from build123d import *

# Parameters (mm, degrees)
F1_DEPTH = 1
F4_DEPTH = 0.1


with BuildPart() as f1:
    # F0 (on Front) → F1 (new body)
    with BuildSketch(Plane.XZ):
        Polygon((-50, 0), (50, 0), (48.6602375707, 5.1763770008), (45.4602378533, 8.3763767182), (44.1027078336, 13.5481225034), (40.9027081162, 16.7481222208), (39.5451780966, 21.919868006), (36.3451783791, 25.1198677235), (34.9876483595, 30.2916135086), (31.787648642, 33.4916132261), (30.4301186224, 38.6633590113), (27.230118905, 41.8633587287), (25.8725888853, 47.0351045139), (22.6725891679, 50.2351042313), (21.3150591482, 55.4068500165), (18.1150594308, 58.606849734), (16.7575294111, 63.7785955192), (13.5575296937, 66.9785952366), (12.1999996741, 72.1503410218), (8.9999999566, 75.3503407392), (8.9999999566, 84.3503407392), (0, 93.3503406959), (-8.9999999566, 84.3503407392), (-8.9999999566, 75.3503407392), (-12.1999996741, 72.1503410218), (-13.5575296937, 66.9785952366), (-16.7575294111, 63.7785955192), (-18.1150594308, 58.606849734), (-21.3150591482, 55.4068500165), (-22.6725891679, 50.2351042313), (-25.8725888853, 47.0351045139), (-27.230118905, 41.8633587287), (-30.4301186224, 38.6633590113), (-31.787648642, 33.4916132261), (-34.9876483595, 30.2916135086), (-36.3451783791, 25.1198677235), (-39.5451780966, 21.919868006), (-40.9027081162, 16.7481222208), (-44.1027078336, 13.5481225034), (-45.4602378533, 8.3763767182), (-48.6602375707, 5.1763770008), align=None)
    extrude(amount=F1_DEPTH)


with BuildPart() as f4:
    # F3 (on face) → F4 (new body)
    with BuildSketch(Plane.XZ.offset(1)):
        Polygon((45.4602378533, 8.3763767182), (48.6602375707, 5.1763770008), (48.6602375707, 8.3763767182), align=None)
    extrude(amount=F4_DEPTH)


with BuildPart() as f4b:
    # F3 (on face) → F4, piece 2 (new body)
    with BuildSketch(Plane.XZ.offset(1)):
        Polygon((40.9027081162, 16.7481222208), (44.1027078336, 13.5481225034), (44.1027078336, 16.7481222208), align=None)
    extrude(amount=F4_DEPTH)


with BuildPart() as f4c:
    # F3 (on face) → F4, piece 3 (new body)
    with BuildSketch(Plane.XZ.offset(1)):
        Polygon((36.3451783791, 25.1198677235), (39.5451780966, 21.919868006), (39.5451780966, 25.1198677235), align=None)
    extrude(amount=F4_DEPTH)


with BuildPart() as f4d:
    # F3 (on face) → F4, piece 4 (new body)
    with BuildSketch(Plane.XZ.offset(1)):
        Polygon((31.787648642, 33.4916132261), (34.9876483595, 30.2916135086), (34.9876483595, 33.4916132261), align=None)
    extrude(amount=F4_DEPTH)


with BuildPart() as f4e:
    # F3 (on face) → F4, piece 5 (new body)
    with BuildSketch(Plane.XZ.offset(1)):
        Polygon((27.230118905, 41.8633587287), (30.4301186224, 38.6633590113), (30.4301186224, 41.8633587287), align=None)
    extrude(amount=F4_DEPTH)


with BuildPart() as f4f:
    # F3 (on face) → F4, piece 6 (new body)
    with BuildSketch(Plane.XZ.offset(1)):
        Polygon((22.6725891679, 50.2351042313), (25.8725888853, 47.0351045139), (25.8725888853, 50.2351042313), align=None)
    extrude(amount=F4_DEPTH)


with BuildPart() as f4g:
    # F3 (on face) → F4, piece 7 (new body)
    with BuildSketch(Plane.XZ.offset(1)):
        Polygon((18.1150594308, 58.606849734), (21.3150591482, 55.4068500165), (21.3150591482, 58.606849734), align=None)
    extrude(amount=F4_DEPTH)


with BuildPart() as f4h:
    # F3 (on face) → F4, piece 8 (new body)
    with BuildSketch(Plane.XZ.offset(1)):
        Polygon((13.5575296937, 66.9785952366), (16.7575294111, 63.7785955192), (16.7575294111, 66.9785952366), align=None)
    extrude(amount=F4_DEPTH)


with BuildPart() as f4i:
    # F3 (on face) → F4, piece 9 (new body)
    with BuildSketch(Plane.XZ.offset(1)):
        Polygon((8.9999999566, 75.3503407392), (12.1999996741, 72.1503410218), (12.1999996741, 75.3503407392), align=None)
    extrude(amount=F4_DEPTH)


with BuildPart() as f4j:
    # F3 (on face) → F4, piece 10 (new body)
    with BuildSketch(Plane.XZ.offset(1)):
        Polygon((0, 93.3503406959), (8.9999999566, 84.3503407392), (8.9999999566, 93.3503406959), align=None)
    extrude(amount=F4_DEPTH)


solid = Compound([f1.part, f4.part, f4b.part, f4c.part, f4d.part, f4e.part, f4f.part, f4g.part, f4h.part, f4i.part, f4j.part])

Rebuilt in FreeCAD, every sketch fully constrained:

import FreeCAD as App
import Part
import Sketcher
Q = App.Units.Quantity


def add_polygon(sketch, points):
    """Adds a closed chain of lines whose ends are joined by coincident constraints."""
    first, n = sketch.GeometryCount, len(points)
    for a, b in zip(points, points[1:] + points[:1]):
        sketch.addGeometry(Part.LineSegment(App.Vector(*a, 0), App.Vector(*b, 0)), False)
    for i in range(n):
        sketch.addConstraint(Sketcher.Constraint("Coincident", first + i, 2, first + (i + 1) % n, 1))

doc = App.newDocument("Part")
params = doc.addObject("Spreadsheet::Sheet", "Params")
for row, (alias, value) in enumerate([
    ("sketch1_width", "100 mm"),
    ("sketch1_height", "9 mm"),
    ("pad1_length", "1 mm"),
    ("sketch2_width", "3.2 mm"),
    ("pad2_length", "0.1 mm"),
    ("sketch3_width", "3.2 mm"),
    ("pad3_length", "0.1 mm"),
    ("sketch4_width", "3.2 mm"),
    ("pad4_length", "0.1 mm"),
    ("sketch5_width", "3.2 mm"),
    ("pad5_length", "0.1 mm"),
    ("sketch6_width", "3.2 mm"),
    ("pad6_length", "0.1 mm"),
    ("sketch7_width", "3.2 mm"),
    ("pad7_length", "0.1 mm"),
    ("sketch8_width", "3.2 mm"),
    ("pad8_length", "0.1 mm"),
    ("sketch9_width", "3.2 mm"),
    ("pad9_length", "0.1 mm"),
    ("sketch10_width", "3.2 mm"),
    ("pad10_length", "0.1 mm"),
    ("sketch11_width", "9 mm"),
    ("pad11_length", "0.1 mm"),
], start=1):
    params.set(f"A{row}", alias)
    params.set(f"B{row}", "=" + value)
    params.setAlias(f"B{row}", alias)

body = doc.addObject("PartDesign::Body", "Body")

sketch1 = body.newObject("Sketcher::SketchObject", "Sketch")
sketch1.AttachmentSupport = (doc.getObject("XZ_Plane"), [""])
sketch1.MapMode = "FlatFace"
add_polygon(sketch1, [(-50, 0), (50, 0), (48.660238, 5.176377), (45.460238, 8.376377), (44.102708, 13.548123), (40.902708, 16.748122), (39.545178, 21.919868), (36.345178, 25.119868), (34.987648, 30.291614), (31.787649, 33.491613), (30.430119, 38.663359), (27.230119, 41.863359), (25.872589, 47.035105), (22.672589, 50.235104), (21.315059, 55.40685), (18.115059, 58.60685), (16.757529, 63.778596), (13.55753, 66.978595), (12.2, 72.150341), (9, 75.350341), (9, 84.350341), (0, 93.350341), (-9, 84.350341), (-9, 75.350341), (-12.2, 72.150341), (-13.55753, 66.978595), (-16.757529, 63.778596), (-18.115059, 58.60685), (-21.315059, 55.40685), (-22.672589, 50.235104), (-25.872589, 47.035105), (-27.230119, 41.863359), (-30.430119, 38.663359), (-31.787649, 33.491613), (-34.987648, 30.291614), (-36.345178, 25.119868), (-39.545178, 21.919868), (-40.902708, 16.748122), (-44.102708, 13.548123), (-45.460238, 8.376377), (-48.660238, 5.176377)])
sketch1.addConstraint([
    Sketcher.Constraint("Horizontal", 0),
    Sketcher.Constraint("Vertical", 19),
    Sketcher.Constraint("Vertical", 22),
    Sketcher.Constraint("Symmetric", 0, 2, 40, 2, -1, 1),
    Sketcher.Constraint("Symmetric", 19, 2, 21, 2, -2),
    Sketcher.Constraint("Symmetric", 17, 2, 23, 2, -2),
    Sketcher.Constraint("Symmetric", 16, 2, 24, 2, -2),
    Sketcher.Constraint("Symmetric", 15, 2, 25, 2, -2),
    Sketcher.Constraint("Symmetric", 14, 2, 26, 2, -2),
    Sketcher.Constraint("Symmetric", 13, 2, 27, 2, -2),
    Sketcher.Constraint("Symmetric", 12, 2, 28, 2, -2),
    Sketcher.Constraint("Symmetric", 11, 2, 29, 2, -2),
    Sketcher.Constraint("Symmetric", 10, 2, 30, 2, -2),
    Sketcher.Constraint("Symmetric", 9, 2, 31, 2, -2),
    Sketcher.Constraint("Symmetric", 8, 2, 32, 2, -2),
    Sketcher.Constraint("Symmetric", 7, 2, 33, 2, -2),
    Sketcher.Constraint("Symmetric", 6, 2, 34, 2, -2),
    Sketcher.Constraint("Symmetric", 5, 2, 35, 2, -2),
    Sketcher.Constraint("Symmetric", 4, 2, 36, 2, -2),
    Sketcher.Constraint("Symmetric", 3, 2, 37, 2, -2),
    Sketcher.Constraint("Symmetric", 2, 2, 38, 2, -2),
    Sketcher.Constraint("Symmetric", 1, 2, 39, 2, -2),
    Sketcher.Constraint("PointOnObject", 20, 2, -2),
    Sketcher.Constraint("Parallel", 2, 4),
    Sketcher.Constraint("Parallel", 3, 5),
    Sketcher.Constraint("Parallel", 4, 6),
    Sketcher.Constraint("Parallel", 5, 7),
    Sketcher.Constraint("Parallel", 6, 8),
    Sketcher.Constraint("Parallel", 7, 9),
    Sketcher.Constraint("Parallel", 8, 10),
    Sketcher.Constraint("Parallel", 9, 11),
    Sketcher.Constraint("Parallel", 10, 12),
    Sketcher.Constraint("Parallel", 11, 13),
    Sketcher.Constraint("Parallel", 12, 14),
    Sketcher.Constraint("Parallel", 13, 15),
    Sketcher.Constraint("Parallel", 14, 16),
    Sketcher.Constraint("Parallel", 15, 17),
    Sketcher.Constraint("Parallel", 16, 18),
    Sketcher.Constraint("Parallel", 18, 20),
    Sketcher.Constraint("Perpendicular", 20, 21),
    Sketcher.Constraint("Parallel", 21, 23),
    Sketcher.Constraint("Equal", 1, 3),
    Sketcher.Constraint("Equal", 2, 4),
    Sketcher.Constraint("Equal", 3, 5),
    Sketcher.Constraint("Equal", 4, 6),
    Sketcher.Constraint("Equal", 5, 7),
    Sketcher.Constraint("Equal", 6, 8),
    Sketcher.Constraint("Equal", 7, 9),
    Sketcher.Constraint("Equal", 8, 10),
    Sketcher.Constraint("Equal", 9, 11),
    Sketcher.Constraint("Equal", 10, 12),
    Sketcher.Constraint("Equal", 11, 13),
    Sketcher.Constraint("Equal", 12, 14),
    Sketcher.Constraint("Equal", 13, 15),
    Sketcher.Constraint("Equal", 14, 16),
    Sketcher.Constraint("Equal", 15, 17),
    Sketcher.Constraint("Equal", 16, 18),
    Sketcher.Constraint("DistanceX", 0, 1, 0, 2, Q("100 mm")),
    Sketcher.Constraint("DistanceY", 19, 1, 19, 2, Q("9 mm")),
    Sketcher.Constraint("DistanceX", -1, 1, 18, 2, Q("9 mm")),
    Sketcher.Constraint("DistanceX", -1, 1, 17, 2, Q("12.2 mm")),
    Sketcher.Constraint("DistanceX", -1, 1, 4, 2, Q("40.902708 mm")),
    Sketcher.Constraint("DistanceY", -1, 1, 5, 2, Q("21.919868 mm")),
])
sketch1.setExpression("Constraints[98]", "Params.sketch1_width")
sketch1.setExpression("Constraints[99]", "Params.sketch1_height")
pad1 = body.newObject("PartDesign::Pad", "Pad")
pad1.Profile = sketch1
pad1.setExpression("Length", "Params.pad1_length")
body2 = doc.addObject("PartDesign::Body", "Body001")

sketch2 = body2.newObject("Sketcher::SketchObject", "Sketch001")
sketch2.AttachmentSupport = (doc.getObject("XZ_Plane001"), [""])
sketch2.MapMode = "FlatFace"
sketch2.AttachmentOffset = App.Placement(App.Vector(0, 0, 1), App.Rotation())
add_polygon(sketch2, [(45.460238, 8.376377), (48.660238, 5.176377), (48.660238, 8.376377)])
sketch2.addConstraint([
    Sketcher.Constraint("Vertical", 1),
    Sketcher.Constraint("Horizontal", 2),
    Sketcher.Constraint("Equal", 2, 1),
    Sketcher.Constraint("DistanceX", 2, 2, 2, 1, Q("3.2 mm")),
    Sketcher.Constraint("DistanceX", -1, 1, 0, 2, Q("48.660238 mm")),
    Sketcher.Constraint("DistanceY", -1, 1, 0, 2, Q("5.176377 mm")),
])
sketch2.setExpression("Constraints[6]", "Params.sketch2_width")
pad2 = body2.newObject("PartDesign::Pad", "Pad001")
pad2.Profile = sketch2
pad2.setExpression("Length", "Params.pad2_length")
body3 = doc.addObject("PartDesign::Body", "Body002")

sketch3 = body3.newObject("Sketcher::SketchObject", "Sketch002")
sketch3.AttachmentSupport = (doc.getObject("XZ_Plane002"), [""])
sketch3.MapMode = "FlatFace"
sketch3.AttachmentOffset = App.Placement(App.Vector(0, 0, 1), App.Rotation())
add_polygon(sketch3, [(40.902708, 16.748122), (44.102708, 13.548123), (44.102708, 16.748122)])
sketch3.addConstraint([
    Sketcher.Constraint("Vertical", 1),
    Sketcher.Constraint("Horizontal", 2),
    Sketcher.Constraint("Equal", 2, 1),
    Sketcher.Constraint("DistanceX", 2, 2, 2, 1, Q("3.2 mm")),
    Sketcher.Constraint("DistanceX", -1, 1, 2, 2, Q("40.902708 mm")),
    Sketcher.Constraint("DistanceY", -1, 1, 0, 2, Q("13.548123 mm")),
])
sketch3.setExpression("Constraints[6]", "Params.sketch3_width")
pad3 = body3.newObject("PartDesign::Pad", "Pad002")
pad3.Profile = sketch3
pad3.setExpression("Length", "Params.pad3_length")
body4 = doc.addObject("PartDesign::Body", "Body003")

sketch4 = body4.newObject("Sketcher::SketchObject", "Sketch003")
sketch4.AttachmentSupport = (doc.getObject("XZ_Plane003"), [""])
sketch4.MapMode = "FlatFace"
sketch4.AttachmentOffset = App.Placement(App.Vector(0, 0, 1), App.Rotation())
add_polygon(sketch4, [(36.345178, 25.119868), (39.545178, 21.919868), (39.545178, 25.119868)])
sketch4.addConstraint([
    Sketcher.Constraint("Vertical", 1),
    Sketcher.Constraint("Horizontal", 2),
    Sketcher.Constraint("Equal", 2, 1),
    Sketcher.Constraint("DistanceX", 2, 2, 2, 1, Q("3.2 mm")),
    Sketcher.Constraint("DistanceX", -1, 1, 0, 2, Q("39.545178 mm")),
    Sketcher.Constraint("DistanceY", -1, 1, 0, 2, Q("21.919868 mm")),
])
sketch4.setExpression("Constraints[6]", "Params.sketch4_width")
pad4 = body4.newObject("PartDesign::Pad", "Pad003")
pad4.Profile = sketch4
pad4.setExpression("Length", "Params.pad4_length")
body5 = doc.addObject("PartDesign::Body", "Body004")

sketch5 = body5.newObject("Sketcher::SketchObject", "Sketch004")
sketch5.AttachmentSupport = (doc.getObject("XZ_Plane004"), [""])
sketch5.MapMode = "FlatFace"
sketch5.AttachmentOffset = App.Placement(App.Vector(0, 0, 1), App.Rotation())
add_polygon(sketch5, [(31.787649, 33.491613), (34.987648, 30.291614), (34.987648, 33.491613)])
sketch5.addConstraint([
    Sketcher.Constraint("Vertical", 1),
    Sketcher.Constraint("Horizontal", 2),
    Sketcher.Constraint("Equal", 2, 1),
    Sketcher.Constraint("DistanceX", 2, 2, 2, 1, Q("3.2 mm")),
    Sketcher.Constraint("DistanceX", -1, 1, 0, 2, Q("34.987648 mm")),
    Sketcher.Constraint("DistanceY", -1, 1, 0, 2, Q("30.291614 mm")),
])
sketch5.setExpression("Constraints[6]", "Params.sketch5_width")
pad5 = body5.newObject("PartDesign::Pad", "Pad004")
pad5.Profile = sketch5
pad5.setExpression("Length", "Params.pad5_length")
body6 = doc.addObject("PartDesign::Body", "Body005")

sketch6 = body6.newObject("Sketcher::SketchObject", "Sketch005")
sketch6.AttachmentSupport = (doc.getObject("XZ_Plane005"), [""])
sketch6.MapMode = "FlatFace"
sketch6.AttachmentOffset = App.Placement(App.Vector(0, 0, 1), App.Rotation())
add_polygon(sketch6, [(27.230119, 41.863359), (30.430119, 38.663359), (30.430119, 41.863359)])
sketch6.addConstraint([
    Sketcher.Constraint("Vertical", 1),
    Sketcher.Constraint("Horizontal", 2),
    Sketcher.Constraint("Equal", 2, 1),
    Sketcher.Constraint("DistanceX", 2, 2, 2, 1, Q("3.2 mm")),
    Sketcher.Constraint("DistanceX", -1, 1, 0, 2, Q("30.430119 mm")),
    Sketcher.Constraint("DistanceY", -1, 1, 0, 2, Q("38.663359 mm")),
])
sketch6.setExpression("Constraints[6]", "Params.sketch6_width")
pad6 = body6.newObject("PartDesign::Pad", "Pad005")
pad6.Profile = sketch6
pad6.setExpression("Length", "Params.pad6_length")
body7 = doc.addObject("PartDesign::Body", "Body006")

sketch7 = body7.newObject("Sketcher::SketchObject", "Sketch006")
sketch7.AttachmentSupport = (doc.getObject("XZ_Plane006"), [""])
sketch7.MapMode = "FlatFace"
sketch7.AttachmentOffset = App.Placement(App.Vector(0, 0, 1), App.Rotation())
add_polygon(sketch7, [(22.672589, 50.235104), (25.872589, 47.035105), (25.872589, 50.235104)])
sketch7.addConstraint([
    Sketcher.Constraint("Vertical", 1),
    Sketcher.Constraint("Horizontal", 2),
    Sketcher.Constraint("Equal", 2, 1),
    Sketcher.Constraint("DistanceX", 2, 2, 2, 1, Q("3.2 mm")),
    Sketcher.Constraint("DistanceX", -1, 1, 0, 2, Q("25.872589 mm")),
    Sketcher.Constraint("DistanceY", -1, 1, 0, 2, Q("47.035105 mm")),
])
sketch7.setExpression("Constraints[6]", "Params.sketch7_width")
pad7 = body7.newObject("PartDesign::Pad", "Pad006")
pad7.Profile = sketch7
pad7.setExpression("Length", "Params.pad7_length")
body8 = doc.addObject("PartDesign::Body", "Body007")

sketch8 = body8.newObject("Sketcher::SketchObject", "Sketch007")
sketch8.AttachmentSupport = (doc.getObject("XZ_Plane007"), [""])
sketch8.MapMode = "FlatFace"
sketch8.AttachmentOffset = App.Placement(App.Vector(0, 0, 1), App.Rotation())
add_polygon(sketch8, [(18.115059, 58.60685), (21.315059, 55.40685), (21.315059, 58.60685)])
sketch8.addConstraint([
    Sketcher.Constraint("Vertical", 1),
    Sketcher.Constraint("Horizontal", 2),
    Sketcher.Constraint("Equal", 2, 1),
    Sketcher.Constraint("DistanceX", 2, 2, 2, 1, Q("3.2 mm")),
    Sketcher.Constraint("DistanceX", -1, 1, 0, 2, Q("21.315059 mm")),
    Sketcher.Constraint("DistanceY", -1, 1, 0, 2, Q("55.40685 mm")),
])
sketch8.setExpression("Constraints[6]", "Params.sketch8_width")
pad8 = body8.newObject("PartDesign::Pad", "Pad007")
pad8.Profile = sketch8
pad8.setExpression("Length", "Params.pad8_length")
body9 = doc.addObject("PartDesign::Body", "Body008")

sketch9 = body9.newObject("Sketcher::SketchObject", "Sketch008")
sketch9.AttachmentSupport = (doc.getObject("XZ_Plane008"), [""])
sketch9.MapMode = "FlatFace"
sketch9.AttachmentOffset = App.Placement(App.Vector(0, 0, 1), App.Rotation())
add_polygon(sketch9, [(13.55753, 66.978595), (16.757529, 63.778596), (16.757529, 66.978595)])
sketch9.addConstraint([
    Sketcher.Constraint("Vertical", 1),
    Sketcher.Constraint("Horizontal", 2),
    Sketcher.Constraint("Equal", 2, 1),
    Sketcher.Constraint("DistanceX", 2, 2, 2, 1, Q("3.2 mm")),
    Sketcher.Constraint("DistanceX", -1, 1, 0, 2, Q("16.757529 mm")),
    Sketcher.Constraint("DistanceY", -1, 1, 0, 2, Q("63.778596 mm")),
])
sketch9.setExpression("Constraints[6]", "Params.sketch9_width")
pad9 = body9.newObject("PartDesign::Pad", "Pad008")
pad9.Profile = sketch9
pad9.setExpression("Length", "Params.pad9_length")
body10 = doc.addObject("PartDesign::Body", "Body009")

sketch10 = body10.newObject("Sketcher::SketchObject", "Sketch009")
sketch10.AttachmentSupport = (doc.getObject("XZ_Plane009"), [""])
sketch10.MapMode = "FlatFace"
sketch10.AttachmentOffset = App.Placement(App.Vector(0, 0, 1), App.Rotation())
add_polygon(sketch10, [(9, 75.350341), (12.2, 72.150341), (12.2, 75.350341)])
sketch10.addConstraint([
    Sketcher.Constraint("Vertical", 1),
    Sketcher.Constraint("Horizontal", 2),
    Sketcher.Constraint("Equal", 2, 1),
    Sketcher.Constraint("DistanceX", 2, 2, 2, 1, Q("3.2 mm")),
    Sketcher.Constraint("DistanceX", -1, 1, 2, 2, Q("9 mm")),
    Sketcher.Constraint("DistanceY", -1, 1, 0, 2, Q("72.150341 mm")),
])
sketch10.setExpression("Constraints[6]", "Params.sketch10_width")
pad10 = body10.newObject("PartDesign::Pad", "Pad009")
pad10.Profile = sketch10
pad10.setExpression("Length", "Params.pad10_length")
body11 = doc.addObject("PartDesign::Body", "Body010")

sketch11 = body11.newObject("Sketcher::SketchObject", "Sketch010")
sketch11.AttachmentSupport = (doc.getObject("XZ_Plane010"), [""])
sketch11.MapMode = "FlatFace"
sketch11.AttachmentOffset = App.Placement(App.Vector(0, 0, 1), App.Rotation())
add_polygon(sketch11, [(0, 93.350341), (9, 84.350341), (9, 93.350341)])
sketch11.addConstraint([
    Sketcher.Constraint("Vertical", 1),
    Sketcher.Constraint("Horizontal", 2),
    Sketcher.Constraint("PointOnObject", 2, 2, -2),
    Sketcher.Constraint("Equal", 2, 1),
    Sketcher.Constraint("DistanceX", 2, 2, 2, 1, Q("9 mm")),
    Sketcher.Constraint("DistanceY", -1, 1, 0, 2, Q("84.350341 mm")),
])
sketch11.setExpression("Constraints[7]", "Params.sketch11_width")
pad11 = body11.newObject("PartDesign::Pad", "Pad010")
pad11.Profile = sketch11
pad11.setExpression("Length", "Params.pad11_length")

doc.recompute()
